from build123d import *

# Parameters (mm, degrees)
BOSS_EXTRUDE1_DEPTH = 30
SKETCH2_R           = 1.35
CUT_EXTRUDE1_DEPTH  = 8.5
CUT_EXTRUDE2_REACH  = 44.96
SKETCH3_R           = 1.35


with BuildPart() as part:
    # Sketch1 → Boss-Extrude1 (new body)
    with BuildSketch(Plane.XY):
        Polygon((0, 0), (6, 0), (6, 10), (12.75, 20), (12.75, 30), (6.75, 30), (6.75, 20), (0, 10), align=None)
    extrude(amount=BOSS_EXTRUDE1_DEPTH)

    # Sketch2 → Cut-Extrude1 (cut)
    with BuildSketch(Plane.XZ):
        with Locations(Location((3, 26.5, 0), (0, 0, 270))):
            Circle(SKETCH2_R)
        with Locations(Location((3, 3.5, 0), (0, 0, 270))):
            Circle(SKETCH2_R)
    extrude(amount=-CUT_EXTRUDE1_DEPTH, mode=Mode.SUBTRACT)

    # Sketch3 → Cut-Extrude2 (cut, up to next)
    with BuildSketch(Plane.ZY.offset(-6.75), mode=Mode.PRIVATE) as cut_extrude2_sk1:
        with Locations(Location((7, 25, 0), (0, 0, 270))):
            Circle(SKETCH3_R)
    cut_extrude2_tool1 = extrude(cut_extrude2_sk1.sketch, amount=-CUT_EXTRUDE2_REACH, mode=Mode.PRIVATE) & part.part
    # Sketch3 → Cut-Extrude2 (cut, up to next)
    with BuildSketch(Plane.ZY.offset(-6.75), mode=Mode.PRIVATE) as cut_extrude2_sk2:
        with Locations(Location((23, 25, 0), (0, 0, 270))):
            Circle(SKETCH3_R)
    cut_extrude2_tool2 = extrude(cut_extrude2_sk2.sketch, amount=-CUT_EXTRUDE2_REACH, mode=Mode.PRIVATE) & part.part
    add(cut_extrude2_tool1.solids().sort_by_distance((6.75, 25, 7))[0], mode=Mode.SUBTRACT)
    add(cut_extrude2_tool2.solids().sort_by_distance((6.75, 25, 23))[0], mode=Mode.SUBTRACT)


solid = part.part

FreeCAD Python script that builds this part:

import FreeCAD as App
import Part
import Sketcher

doc = App.newDocument("Part")
body = doc.addObject("PartDesign::Body", "Body")

sketch1 = doc.addObject("Sketcher::SketchObject", "Sketch")
body.addObject(sketch1)
sketch1.AttachmentSupport = (doc.XY_Plane, [""])
sketch1.MapMode = "FlatFace"
sketch1.addGeometry(Part.LineSegment(App.Vector(0, 0, 0), App.Vector(6, 0, 0)), False)
sketch1.addGeometry(Part.LineSegment(App.Vector(6, 0, 0), App.Vector(6, 10, 0)), False)
sketch1.addGeometry(Part.LineSegment(App.Vector(6, 10, 0), App.Vector(13, 20, 0)), False)
sketch1.addGeometry(Part.LineSegment(App.Vector(13, 20, 0), App.Vector(13, 30, 0)), False)
sketch1.addGeometry(Part.LineSegment(App.Vector(13, 30, 0), App.Vector(7, 30, 0)), False)
sketch1.addGeometry(Part.LineSegment(App.Vector(7, 30, 0), App.Vector(7, 20, 0)), False)
sketch1.addGeometry(Part.LineSegment(App.Vector(7, 20, 0), App.Vector(0, 10, 0)), False)
sketch1.addGeometry(Part.LineSegment(App.Vector(0, 10, 0), App.Vector(0, 0, 0)), False)
sketch1.addConstraint(Sketcher.Constraint("Coincident", 0, 2, 1, 1))
sketch1.addConstraint(Sketcher.Constraint("Coincident", 1, 2, 2, 1))
sketch1.addConstraint(Sketcher.Constraint("Coincident", 2, 2, 3, 1))
sketch1.addConstraint(Sketcher.Constraint("Coincident", 3, 2, 4, 1))
sketch1.addConstraint(Sketcher.Constraint("Coincident", 4, 2, 5, 1))
sketch1.addConstraint(Sketcher.Constraint("Coincident", 5, 2, 6, 1))
sketch1.addConstraint(Sketcher.Constraint("Coincident", 6, 2, 7, 1))
sketch1.addConstraint(Sketcher.Constraint("Coincident", 7, 2, 0, 1))
sketch1.addConstraint(Sketcher.Constraint("Horizontal", 0))
sketch1.addConstraint(Sketcher.Constraint("Vertical", 1))
sketch1.addConstraint(Sketcher.Constraint("Vertical", 3))
sketch1.addConstraint(Sketcher.Constraint("Horizontal", 4))
sketch1.addConstraint(Sketcher.Constraint("Vertical", 5))
sketch1.addConstraint(Sketcher.Constraint("Vertical", 7))
sketch1.addConstraint(Sketcher.Constraint("Coincident", 7, 2, -1, 1))
sketch1.addConstraint(Sketcher.Constraint("Parallel", 2, 6))
sketch1.addConstraint(Sketcher.Constraint("Horizontal", 2, 2, 5, 2))
sketch1.addConstraint(Sketcher.Constraint("Horizontal", 1, 2, 6, 2))
sketch1.addConstraint(Sketcher.Constraint("Equal", 1, 3))
sketch1.addConstraint(Sketcher.Constraint("DistanceX", 0, 1, 0, 2, 6.0))
sketch1.addConstraint(Sketcher.Constraint("DistanceY", 1, 1, 1, 2, 10.0))
sketch1.addConstraint(Sketcher.Constraint("DistanceY", -1, 1, 2, 2, 20.0))
sketch1.addConstraint(Sketcher.Constraint("DistanceX", -1, 1, 2, 2, 12.75))
pad1 = doc.addObject("PartDesign::Pad", "Pad")
body.addObject(pad1)
pad1.Profile = sketch1
pad1.Length = 30

sketch2 = doc.addObject("Sketcher::SketchObject", "Sketch001")
body.addObject(sketch2)
sketch2.AttachmentSupport = (doc.XZ_Plane, [""])
sketch2.MapMode = "FlatFace"
sketch2.addGeometry(Part.Circle(App.Vector(3, 26.5, 0), App.Vector(0, 0, 1), 1.4), False)
sketch2.addGeometry(Part.Circle(App.Vector(3, 3.5, 0), App.Vector(0, 0, 1), 1.4), False)
sketch2.addConstraint(Sketcher.Constraint("Equal", 0, 1))
sketch2.addConstraint(Sketcher.Constraint("Vertical", 0, 3, 1, 3))
sketch2.addConstraint(Sketcher.Constraint("Diameter", 0, 2.7))
sketch2.addConstraint(Sketcher.Constraint("DistanceX", -1, 1, 0, 3, 3.0))
sketch2.addConstraint(Sketcher.Constraint("DistanceY", 1, 3, 0, 3, 23.0))
sketch2.addConstraint(Sketcher.Constraint("DistanceY", -1, 1, 0, 3, 26.5))
pocket1 = doc.addObject("PartDesign::Pocket", "Pocket")
body.addObject(pocket1)
pocket1.Profile = sketch2
pocket1.Length = 8.5

sketch3 = doc.addObject("Sketcher::SketchObject", "Sketch002")
body.addObject(sketch3)
sketch3.AttachmentSupport = (doc.YZ_Plane, [""])
sketch3.MapMode = "FlatFace"
sketch3.AttachmentOffset = App.Placement(App.Vector(0, 0, 6.75), App.Rotation())
sketch3.addGeometry(Part.Circle(App.Vector(25, 7, 0), App.Vector(0, 0, 1), 1.4), False)
sketch3.addConstraint(Sketcher.Constraint("Diameter", 0, 2.7))
sketch3.addConstraint(Sketcher.Constraint("DistanceX", -1, 1, 0, 3, 25.0))
sketch3.addConstraint(Sketcher.Constraint("DistanceY", -1, 1, 0, 3, 7.0))
pocket2 = doc.addObject("PartDesign::Pocket", "Pocket001")
body.addObject(pocket2)
pocket2.Profile = sketch3
pocket2.Type = "UpToFirst"
pocket2.Reversed = True

sketch4 = doc.addObject("Sketcher::SketchObject", "Sketch003")
body.addObject(sketch4)
sketch4.AttachmentSupport = (doc.YZ_Plane, [""])
sketch4.MapMode = "FlatFace"
sketch4.AttachmentOffset = App.Placement(App.Vector(0, 0, 6.75), App.Rotation())
sketch4.addGeometry(Part.Circle(App.Vector(25, 23, 0), App.Vector(0, 0, 1), 1.4), False)
sketch4.addConstraint(Sketcher.Constraint("Diameter", 0, 2.7))
sketch4.addConstraint(Sketcher.Constraint("DistanceX", -1, 1, 0, 3, 25.0))
sketch4.addConstraint(Sketcher.Constraint("DistanceY", -1, 1, 0, 3, 23.0))
pocket3 = doc.addObject("PartDesign::Pocket", "Pocket002")
body.addObject(pocket3)
pocket3.Profile = sketch4
pocket3.Type = "UpToFirst"
pocket3.Reversed = True

doc.recompute()
